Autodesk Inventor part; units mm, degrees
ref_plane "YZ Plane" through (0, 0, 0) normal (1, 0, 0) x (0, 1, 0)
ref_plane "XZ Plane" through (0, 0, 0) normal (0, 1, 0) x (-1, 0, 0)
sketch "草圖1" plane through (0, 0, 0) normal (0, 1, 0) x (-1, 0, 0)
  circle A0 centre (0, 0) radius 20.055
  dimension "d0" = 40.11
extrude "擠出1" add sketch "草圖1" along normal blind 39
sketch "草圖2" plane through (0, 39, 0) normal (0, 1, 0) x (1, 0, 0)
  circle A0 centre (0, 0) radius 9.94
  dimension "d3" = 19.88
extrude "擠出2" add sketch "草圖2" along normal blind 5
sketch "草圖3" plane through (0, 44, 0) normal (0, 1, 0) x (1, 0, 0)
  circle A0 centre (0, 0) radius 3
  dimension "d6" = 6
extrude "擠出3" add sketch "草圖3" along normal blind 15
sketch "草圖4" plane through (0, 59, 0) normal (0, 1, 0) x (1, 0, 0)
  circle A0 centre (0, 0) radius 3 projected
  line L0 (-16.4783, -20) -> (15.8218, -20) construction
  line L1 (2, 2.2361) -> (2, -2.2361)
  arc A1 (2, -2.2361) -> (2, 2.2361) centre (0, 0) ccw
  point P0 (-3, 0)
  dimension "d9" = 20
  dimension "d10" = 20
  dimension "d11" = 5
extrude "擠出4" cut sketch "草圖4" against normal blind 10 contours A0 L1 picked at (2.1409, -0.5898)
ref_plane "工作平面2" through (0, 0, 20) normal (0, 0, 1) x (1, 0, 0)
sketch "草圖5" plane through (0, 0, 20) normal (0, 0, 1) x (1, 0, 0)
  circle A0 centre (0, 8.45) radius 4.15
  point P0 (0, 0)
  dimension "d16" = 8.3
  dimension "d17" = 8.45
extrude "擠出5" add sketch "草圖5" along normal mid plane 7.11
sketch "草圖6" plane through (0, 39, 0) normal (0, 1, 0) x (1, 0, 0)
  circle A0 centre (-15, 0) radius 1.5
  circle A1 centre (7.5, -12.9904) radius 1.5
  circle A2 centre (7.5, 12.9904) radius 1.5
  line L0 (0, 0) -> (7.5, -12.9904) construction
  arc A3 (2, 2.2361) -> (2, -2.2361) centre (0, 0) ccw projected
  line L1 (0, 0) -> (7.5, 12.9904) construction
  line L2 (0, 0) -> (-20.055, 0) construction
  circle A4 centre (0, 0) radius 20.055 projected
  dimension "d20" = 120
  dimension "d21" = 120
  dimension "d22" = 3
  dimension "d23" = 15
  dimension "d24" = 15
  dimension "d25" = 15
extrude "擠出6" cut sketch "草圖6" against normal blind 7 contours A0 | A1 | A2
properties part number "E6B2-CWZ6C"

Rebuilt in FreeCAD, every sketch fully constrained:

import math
import FreeCAD as App
import Part
import Sketcher

doc = App.newDocument("Part")
body = doc.addObject("PartDesign::Body", "Body")

sketch1 = body.newObject("Sketcher::SketchObject", "Sketch")
sketch1.AttachmentSupport = (doc.getObject("XZ_Plane"), [""])
sketch1.MapMode = "FlatFace"
sketch1.addGeometry(Part.Circle(App.Vector(0, 0, 0), App.Vector(0, 0, 1), 20), False)
sketch1.addConstraint(Sketcher.Constraint("Coincident", 0, 3, -1, 1))
sketch1.addConstraint(Sketcher.Constraint("Diameter", 0, 40.11))
pad1 = body.newObject("PartDesign::Pad", "Pad")
pad1.Profile = sketch1
pad1.Length = 39
pad1.Reversed = True

sketch2 = body.newObject("Sketcher::SketchObject", "Sketch001")
sketch2.AttachmentSupport = (doc.getObject("XZ_Plane"), [""])
sketch2.MapMode = "FlatFace"
sketch2.AttachmentOffset = App.Placement(App.Vector(0, 0, -39), App.Rotation())
sketch2.addGeometry(Part.Circle(App.Vector(0, 0, 0), App.Vector(0, 0, 1), 10), False)
sketch2.addConstraint(Sketcher.Constraint("Coincident", 0, 3, -1, 1))
sketch2.addConstraint(Sketcher.Constraint("Diameter", 0, 19.88))
pad2 = body.newObject("PartDesign::Pad", "Pad001")
pad2.Profile = sketch2
pad2.Length = 5
pad2.Reversed = True

sketch3 = body.newObject("Sketcher::SketchObject", "Sketch002")
sketch3.AttachmentSupport = (doc.getObject("XZ_Plane"), [""])
sketch3.MapMode = "FlatFace"
sketch3.AttachmentOffset = App.Placement(App.Vector(0, 0, -44), App.Rotation())
sketch3.addGeometry(Part.Circle(App.Vector(0, 0, 0), App.Vector(0, 0, 1), 3), False)
sketch3.addConstraint(Sketcher.Constraint("Coincident", 0, 3, -1, 1))
sketch3.addConstraint(Sketcher.Constraint("Diameter", 0, 6.0))
pad3 = body.newObject("PartDesign::Pad", "Pad002")
pad3.Profile = sketch3
pad3.Length = 15
pad3.Reversed = True

sketch4 = body.newObject("Sketcher::SketchObject", "Sketch003")
sketch4.AttachmentSupport = (doc.getObject("XZ_Plane"), [""])
sketch4.MapMode = "FlatFace"
sketch4.AttachmentOffset = App.Placement(App.Vector(0, 0, -59), App.Rotation())
sketch4.addGeometry(Part.ArcOfCircle(Part.Circle(App.Vector(0, 0, 0), App.Vector(0, 0, 1), 3), math.radians(-48), math.radians(48)), False)
sketch4.addGeometry(Part.LineSegment(App.Vector(2, 2.2, 0), App.Vector(2, -2.2, 0)), False)
sketch4.addConstraint(Sketcher.Constraint("Coincident", 0, 1, 1, 2))
sketch4.addConstraint(Sketcher.Constraint("Coincident", 1, 1, 0, 2))
sketch4.addConstraint(Sketcher.Constraint("Vertical", 1))
sketch4.addConstraint(Sketcher.Constraint("Coincident", 0, 3, -1, 1))
sketch4.addConstraint(Sketcher.Constraint("Radius", 0, 3.0))
sketch4.addConstraint(Sketcher.Constraint("DistanceX", -1, 1, 0, 1, 2.0))
pocket1 = body.newObject("PartDesign::Pocket", "Pocket")
pocket1.Profile = sketch4
pocket1.Length = 10
pocket1.Reversed = True

sketch5 = body.newObject("Sketcher::SketchObject", "Sketch004")
sketch5.AttachmentSupport = (doc.getObject("XY_Plane"), [""])
sketch5.MapMode = "FlatFace"
sketch5.AttachmentOffset = App.Placement(App.Vector(0, 0, 20), App.Rotation())
sketch5.addGeometry(Part.Circle(App.Vector(0, 8.4, 0), App.Vector(0, 0, 1), 4.2), False)
sketch5.addConstraint(Sketcher.Constraint("PointOnObject", 0, 3, -2))
sketch5.addConstraint(Sketcher.Constraint("Diameter", 0, 8.3))
sketch5.addConstraint(Sketcher.Constraint("DistanceY", -1, 1, 0, 3, 8.45))
pad4 = body.newObject("PartDesign::Pad", "Pad003")
pad4.Profile = sketch5
pad4.Length = 7.11
pad4.Midplane = True

sketch6 = body.newObject("Sketcher::SketchObject", "Sketch005")
sketch6.AttachmentSupport = (doc.getObject("XZ_Plane"), [""])
sketch6.MapMode = "FlatFace"
sketch6.AttachmentOffset = App.Placement(App.Vector(0, 0, -39), App.Rotation())
sketch6.addGeometry(Part.Circle(App.Vector(-15, 0, 0), App.Vector(0, 0, 1), 1.5), False)
sketch6.addGeometry(Part.Circle(App.Vector(7.5, 13, 0), App.Vector(0, 0, 1), 1.5), False)
sketch6.addGeometry(Part.Circle(App.Vector(7.5, -13, 0), App.Vector(0, 0, 1), 1.5), False)
sketch6.addConstraint(Sketcher.Constraint("Equal", 0, 1))
sketch6.addConstraint(Sketcher.Constraint("Equal", 1, 2))
sketch6.addConstraint(Sketcher.Constraint("Symmetric", 1, 3, 2, 3, -1))
sketch6.addConstraint(Sketcher.Constraint("PointOnObject", 0, 3, -1))
sketch6.addConstraint(Sketcher.Constraint("Diameter", 0, 3.0))
sketch6.addConstraint(Sketcher.Constraint("DistanceX", 0, 3, -1, 1, 15.0))
sketch6.addConstraint(Sketcher.Constraint("DistanceX", -1, 1, 1, 3, 7.5))
sketch6.addConstraint(Sketcher.Constraint("DistanceY", -1, 1, 1, 3, 12.9904))
pocket2 = body.newObject("PartDesign::Pocket", "Pocket001")
pocket2.Profile = sketch6
pocket2.Length = 7
pocket2.Reversed = True

doc.recompute()
